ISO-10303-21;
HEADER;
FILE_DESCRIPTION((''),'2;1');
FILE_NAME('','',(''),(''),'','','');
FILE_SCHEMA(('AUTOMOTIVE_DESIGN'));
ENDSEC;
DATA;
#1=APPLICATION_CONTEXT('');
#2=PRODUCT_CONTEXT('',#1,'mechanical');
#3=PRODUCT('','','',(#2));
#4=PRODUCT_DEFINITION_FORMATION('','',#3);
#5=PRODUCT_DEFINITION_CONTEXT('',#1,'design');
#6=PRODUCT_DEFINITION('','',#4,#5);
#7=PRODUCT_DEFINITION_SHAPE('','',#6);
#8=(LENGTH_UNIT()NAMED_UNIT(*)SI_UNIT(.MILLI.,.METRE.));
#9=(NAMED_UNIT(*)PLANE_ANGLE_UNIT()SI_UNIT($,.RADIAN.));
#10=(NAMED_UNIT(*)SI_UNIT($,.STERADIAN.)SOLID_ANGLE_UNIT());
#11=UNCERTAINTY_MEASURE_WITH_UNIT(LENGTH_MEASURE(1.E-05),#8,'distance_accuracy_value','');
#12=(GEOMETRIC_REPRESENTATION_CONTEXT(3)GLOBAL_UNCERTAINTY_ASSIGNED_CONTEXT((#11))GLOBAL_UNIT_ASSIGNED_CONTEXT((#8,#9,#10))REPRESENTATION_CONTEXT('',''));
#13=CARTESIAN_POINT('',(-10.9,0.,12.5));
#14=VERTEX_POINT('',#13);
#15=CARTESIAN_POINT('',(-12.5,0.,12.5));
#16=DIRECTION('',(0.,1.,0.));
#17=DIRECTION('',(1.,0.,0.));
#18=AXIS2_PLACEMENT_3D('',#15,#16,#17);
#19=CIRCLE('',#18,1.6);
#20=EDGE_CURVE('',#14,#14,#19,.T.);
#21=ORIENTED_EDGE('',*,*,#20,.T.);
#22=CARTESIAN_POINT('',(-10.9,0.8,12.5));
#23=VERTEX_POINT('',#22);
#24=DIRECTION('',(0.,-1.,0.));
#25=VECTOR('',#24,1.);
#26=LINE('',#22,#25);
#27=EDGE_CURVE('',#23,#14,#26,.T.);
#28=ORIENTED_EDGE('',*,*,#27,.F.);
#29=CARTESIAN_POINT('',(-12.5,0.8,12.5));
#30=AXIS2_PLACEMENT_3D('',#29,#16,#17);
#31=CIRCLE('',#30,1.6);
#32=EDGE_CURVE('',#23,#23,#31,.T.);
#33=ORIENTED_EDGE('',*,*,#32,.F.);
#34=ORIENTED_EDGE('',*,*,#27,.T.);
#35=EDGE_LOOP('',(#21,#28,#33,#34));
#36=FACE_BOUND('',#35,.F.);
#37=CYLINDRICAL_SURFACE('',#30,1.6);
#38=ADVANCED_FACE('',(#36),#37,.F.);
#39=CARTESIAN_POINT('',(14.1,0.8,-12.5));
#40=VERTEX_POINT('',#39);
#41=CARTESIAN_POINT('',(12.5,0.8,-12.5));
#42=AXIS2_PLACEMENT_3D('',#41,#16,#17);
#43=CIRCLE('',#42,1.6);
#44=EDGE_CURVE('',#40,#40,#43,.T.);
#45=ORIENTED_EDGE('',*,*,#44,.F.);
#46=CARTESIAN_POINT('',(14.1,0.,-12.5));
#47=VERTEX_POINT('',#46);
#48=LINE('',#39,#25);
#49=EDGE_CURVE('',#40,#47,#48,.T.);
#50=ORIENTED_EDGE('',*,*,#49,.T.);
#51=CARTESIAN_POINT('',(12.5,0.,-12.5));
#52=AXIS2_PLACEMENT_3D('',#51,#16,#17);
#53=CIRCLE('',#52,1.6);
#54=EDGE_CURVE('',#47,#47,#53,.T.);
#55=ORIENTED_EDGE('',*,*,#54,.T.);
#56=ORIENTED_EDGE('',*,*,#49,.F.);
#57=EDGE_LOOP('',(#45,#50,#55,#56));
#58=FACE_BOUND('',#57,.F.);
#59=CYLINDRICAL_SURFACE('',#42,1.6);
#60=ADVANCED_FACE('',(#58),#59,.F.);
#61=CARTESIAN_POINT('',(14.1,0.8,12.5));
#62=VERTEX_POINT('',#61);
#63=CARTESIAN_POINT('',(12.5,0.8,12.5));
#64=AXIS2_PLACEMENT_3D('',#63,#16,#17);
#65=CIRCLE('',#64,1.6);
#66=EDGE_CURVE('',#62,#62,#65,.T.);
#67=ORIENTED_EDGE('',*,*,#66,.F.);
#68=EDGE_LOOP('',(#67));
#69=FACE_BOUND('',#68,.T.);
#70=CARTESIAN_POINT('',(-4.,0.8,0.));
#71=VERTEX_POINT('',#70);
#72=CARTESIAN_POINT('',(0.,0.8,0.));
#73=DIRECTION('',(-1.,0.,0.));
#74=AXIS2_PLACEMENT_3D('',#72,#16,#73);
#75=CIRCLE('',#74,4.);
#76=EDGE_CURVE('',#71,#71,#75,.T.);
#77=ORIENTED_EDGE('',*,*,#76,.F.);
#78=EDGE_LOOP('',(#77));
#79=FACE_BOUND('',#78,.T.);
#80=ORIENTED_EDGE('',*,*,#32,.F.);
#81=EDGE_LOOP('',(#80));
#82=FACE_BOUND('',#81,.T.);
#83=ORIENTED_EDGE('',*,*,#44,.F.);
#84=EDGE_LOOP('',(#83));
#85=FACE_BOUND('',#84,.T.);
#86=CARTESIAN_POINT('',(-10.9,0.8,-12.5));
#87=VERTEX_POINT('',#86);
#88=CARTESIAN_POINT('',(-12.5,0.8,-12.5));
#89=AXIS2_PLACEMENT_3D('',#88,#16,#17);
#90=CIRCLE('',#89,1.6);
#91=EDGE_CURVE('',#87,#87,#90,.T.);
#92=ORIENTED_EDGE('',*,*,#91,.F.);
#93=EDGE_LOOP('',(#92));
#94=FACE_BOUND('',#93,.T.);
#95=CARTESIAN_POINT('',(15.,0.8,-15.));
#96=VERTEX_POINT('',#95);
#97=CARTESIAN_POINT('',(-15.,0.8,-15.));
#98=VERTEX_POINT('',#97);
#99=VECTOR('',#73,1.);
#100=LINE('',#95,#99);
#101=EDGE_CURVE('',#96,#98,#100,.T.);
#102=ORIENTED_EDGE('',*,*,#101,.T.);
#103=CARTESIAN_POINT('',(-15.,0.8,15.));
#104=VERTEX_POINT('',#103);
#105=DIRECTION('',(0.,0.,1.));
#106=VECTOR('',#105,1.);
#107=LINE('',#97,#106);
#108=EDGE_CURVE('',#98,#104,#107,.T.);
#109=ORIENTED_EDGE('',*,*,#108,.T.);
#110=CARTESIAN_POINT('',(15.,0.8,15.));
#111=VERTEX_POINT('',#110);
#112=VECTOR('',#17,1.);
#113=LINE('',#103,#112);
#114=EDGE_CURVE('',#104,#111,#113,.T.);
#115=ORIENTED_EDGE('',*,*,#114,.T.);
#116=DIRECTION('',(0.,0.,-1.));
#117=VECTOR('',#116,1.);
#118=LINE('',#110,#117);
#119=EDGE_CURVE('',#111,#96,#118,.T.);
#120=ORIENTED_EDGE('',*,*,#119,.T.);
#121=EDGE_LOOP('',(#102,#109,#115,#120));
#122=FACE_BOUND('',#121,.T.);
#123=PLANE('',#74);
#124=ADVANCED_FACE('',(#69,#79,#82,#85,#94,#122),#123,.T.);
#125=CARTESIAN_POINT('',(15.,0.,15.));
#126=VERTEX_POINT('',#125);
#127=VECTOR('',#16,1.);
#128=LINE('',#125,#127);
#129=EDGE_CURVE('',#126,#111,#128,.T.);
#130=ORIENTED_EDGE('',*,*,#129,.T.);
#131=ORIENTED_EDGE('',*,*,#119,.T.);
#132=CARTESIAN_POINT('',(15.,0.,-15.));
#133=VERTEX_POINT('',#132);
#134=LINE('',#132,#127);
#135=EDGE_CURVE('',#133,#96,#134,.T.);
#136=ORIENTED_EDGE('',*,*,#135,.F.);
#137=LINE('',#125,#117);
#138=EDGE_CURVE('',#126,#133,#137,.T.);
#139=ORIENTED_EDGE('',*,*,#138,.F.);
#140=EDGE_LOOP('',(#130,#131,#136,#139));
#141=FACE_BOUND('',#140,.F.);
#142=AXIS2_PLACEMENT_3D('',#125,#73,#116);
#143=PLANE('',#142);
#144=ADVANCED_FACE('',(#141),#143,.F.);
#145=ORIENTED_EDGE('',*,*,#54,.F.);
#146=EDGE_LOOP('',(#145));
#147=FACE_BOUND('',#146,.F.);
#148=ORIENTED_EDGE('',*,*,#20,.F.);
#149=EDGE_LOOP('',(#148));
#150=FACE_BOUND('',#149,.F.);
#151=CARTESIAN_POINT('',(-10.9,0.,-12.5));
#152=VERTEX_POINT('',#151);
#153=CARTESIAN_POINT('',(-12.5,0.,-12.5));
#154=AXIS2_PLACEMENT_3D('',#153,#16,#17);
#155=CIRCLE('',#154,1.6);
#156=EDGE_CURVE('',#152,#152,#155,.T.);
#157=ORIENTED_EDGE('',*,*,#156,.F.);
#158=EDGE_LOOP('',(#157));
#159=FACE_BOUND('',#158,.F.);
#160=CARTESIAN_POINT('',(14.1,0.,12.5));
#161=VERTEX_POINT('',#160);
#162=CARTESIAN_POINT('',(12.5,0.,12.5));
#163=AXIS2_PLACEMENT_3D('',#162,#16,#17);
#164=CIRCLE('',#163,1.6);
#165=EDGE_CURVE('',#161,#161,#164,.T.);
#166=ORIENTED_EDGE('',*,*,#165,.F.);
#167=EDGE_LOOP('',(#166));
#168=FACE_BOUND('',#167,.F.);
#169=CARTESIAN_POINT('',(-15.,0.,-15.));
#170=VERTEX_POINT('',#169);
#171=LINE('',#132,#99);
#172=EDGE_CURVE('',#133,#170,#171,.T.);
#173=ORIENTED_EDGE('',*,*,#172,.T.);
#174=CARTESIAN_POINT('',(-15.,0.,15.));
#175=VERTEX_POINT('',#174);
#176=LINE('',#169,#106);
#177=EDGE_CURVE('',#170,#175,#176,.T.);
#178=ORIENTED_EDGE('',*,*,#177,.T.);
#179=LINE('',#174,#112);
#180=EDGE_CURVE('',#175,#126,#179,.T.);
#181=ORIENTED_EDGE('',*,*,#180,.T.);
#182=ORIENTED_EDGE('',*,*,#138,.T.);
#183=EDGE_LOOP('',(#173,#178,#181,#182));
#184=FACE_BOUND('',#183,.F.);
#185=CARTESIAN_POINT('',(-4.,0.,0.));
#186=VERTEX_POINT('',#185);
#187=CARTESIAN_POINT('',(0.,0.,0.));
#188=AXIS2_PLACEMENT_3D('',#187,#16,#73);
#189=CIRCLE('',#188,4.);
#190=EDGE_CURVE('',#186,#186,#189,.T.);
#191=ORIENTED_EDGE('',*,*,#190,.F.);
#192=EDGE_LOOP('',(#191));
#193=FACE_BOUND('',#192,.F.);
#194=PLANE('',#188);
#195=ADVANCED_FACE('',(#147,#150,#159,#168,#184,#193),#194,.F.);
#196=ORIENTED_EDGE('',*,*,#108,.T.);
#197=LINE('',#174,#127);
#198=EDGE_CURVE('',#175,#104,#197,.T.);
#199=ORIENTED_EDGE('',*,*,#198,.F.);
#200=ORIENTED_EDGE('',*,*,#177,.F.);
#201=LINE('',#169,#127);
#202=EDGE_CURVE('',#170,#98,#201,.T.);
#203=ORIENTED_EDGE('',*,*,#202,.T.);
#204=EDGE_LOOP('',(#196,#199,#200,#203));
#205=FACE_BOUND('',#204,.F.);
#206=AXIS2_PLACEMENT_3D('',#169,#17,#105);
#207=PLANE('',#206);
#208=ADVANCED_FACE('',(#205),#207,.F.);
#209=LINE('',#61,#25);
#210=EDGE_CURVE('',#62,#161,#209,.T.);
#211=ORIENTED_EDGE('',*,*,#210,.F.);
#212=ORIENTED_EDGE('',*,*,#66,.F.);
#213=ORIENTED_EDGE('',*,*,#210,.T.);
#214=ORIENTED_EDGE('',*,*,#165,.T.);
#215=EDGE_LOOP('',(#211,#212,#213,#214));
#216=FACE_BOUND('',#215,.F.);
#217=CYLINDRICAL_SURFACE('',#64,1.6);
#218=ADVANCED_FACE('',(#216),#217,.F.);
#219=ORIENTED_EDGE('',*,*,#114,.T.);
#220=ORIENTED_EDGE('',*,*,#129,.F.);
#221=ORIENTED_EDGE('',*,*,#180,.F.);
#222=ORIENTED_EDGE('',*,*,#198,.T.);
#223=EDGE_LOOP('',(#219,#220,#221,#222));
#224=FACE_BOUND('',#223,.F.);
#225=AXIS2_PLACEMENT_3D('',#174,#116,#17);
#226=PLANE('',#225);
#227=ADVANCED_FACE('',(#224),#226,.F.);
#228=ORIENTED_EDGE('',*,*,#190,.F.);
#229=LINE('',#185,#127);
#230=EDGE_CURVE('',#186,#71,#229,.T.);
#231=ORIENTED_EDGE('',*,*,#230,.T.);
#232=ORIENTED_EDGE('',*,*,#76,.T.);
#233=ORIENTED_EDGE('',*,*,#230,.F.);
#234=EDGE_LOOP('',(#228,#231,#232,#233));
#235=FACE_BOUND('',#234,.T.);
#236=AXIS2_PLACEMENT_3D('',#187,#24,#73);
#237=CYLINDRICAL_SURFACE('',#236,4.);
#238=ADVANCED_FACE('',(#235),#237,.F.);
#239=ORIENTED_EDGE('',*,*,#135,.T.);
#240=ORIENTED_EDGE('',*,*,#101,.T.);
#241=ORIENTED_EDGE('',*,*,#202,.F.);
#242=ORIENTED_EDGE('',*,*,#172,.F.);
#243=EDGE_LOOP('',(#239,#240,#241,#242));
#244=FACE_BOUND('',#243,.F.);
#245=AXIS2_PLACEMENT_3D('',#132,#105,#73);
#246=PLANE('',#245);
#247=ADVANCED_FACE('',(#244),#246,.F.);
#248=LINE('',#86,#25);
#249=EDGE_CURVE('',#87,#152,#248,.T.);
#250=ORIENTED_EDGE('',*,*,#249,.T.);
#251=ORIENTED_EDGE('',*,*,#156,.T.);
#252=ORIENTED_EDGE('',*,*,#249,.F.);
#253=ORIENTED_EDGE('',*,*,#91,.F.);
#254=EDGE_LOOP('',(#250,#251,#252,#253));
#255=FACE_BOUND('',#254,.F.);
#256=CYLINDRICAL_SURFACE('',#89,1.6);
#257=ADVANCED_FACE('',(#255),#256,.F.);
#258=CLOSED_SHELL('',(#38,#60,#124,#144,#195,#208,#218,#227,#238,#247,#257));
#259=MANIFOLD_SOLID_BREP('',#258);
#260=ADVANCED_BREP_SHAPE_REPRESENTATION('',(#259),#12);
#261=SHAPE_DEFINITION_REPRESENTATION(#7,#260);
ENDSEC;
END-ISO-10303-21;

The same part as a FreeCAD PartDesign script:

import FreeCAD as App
import Part
import Sketcher


def add_polygon(sketch, points):
    """Adds a closed chain of lines whose ends are joined by coincident constraints."""
    first, n = sketch.GeometryCount, len(points)
    for a, b in zip(points, points[1:] + points[:1]):
        sketch.addGeometry(Part.LineSegment(App.Vector(*a, 0), App.Vector(*b, 0)), False)
    for i in range(n):
        sketch.addConstraint(Sketcher.Constraint("Coincident", first + i, 2, first + (i + 1) % n, 1))

doc = App.newDocument("Part")
body = doc.addObject("PartDesign::Body", "Body")

# Sketch on XZ plane
sketch1 = body.newObject("Sketcher::SketchObject", "Sketch")
sketch1.AttachmentSupport = (doc.getObject("XZ_Plane"), [""])
sketch1.MapMode = "FlatFace"
add_polygon(sketch1, [(15, 15), (15, -15), (-15, -15), (-15, 15)])  # lines 0-3
sketch1.addGeometry(Part.Circle(App.Vector(0, 0, 0), App.Vector(0, 0, 1), 4), False)  # 4
sketch1.addConstraint([
    Sketcher.Constraint("Vertical", 0),
    Sketcher.Constraint("Horizontal", 1),
    Sketcher.Constraint("Vertical", 2),
    Sketcher.Constraint("Horizontal", 3),
    Sketcher.Constraint("Coincident", 4, 3, -1, 1),
    Sketcher.Constraint("Symmetric", 0, 2, 2, 2, -1, 1),
    Sketcher.Constraint("Equal", 3, 0),
    Sketcher.Constraint("Diameter", 4, 8.0),
    Sketcher.Constraint("DistanceX", 1, 2, 1, 1, 30.0),
])
pad1 = body.newObject("PartDesign::Pad", "Pad")
pad1.Profile = sketch1
pad1.Length = 0.8
pad1.Reversed = True

# Sketch on XZ plane
sketch2 = body.newObject("Sketcher::SketchObject", "Sketch001")
sketch2.AttachmentSupport = (doc.getObject("XZ_Plane"), [""])
sketch2.MapMode = "FlatFace"
sketch2.AttachmentOffset = App.Placement(App.Vector(0, 0, -0.8), App.Rotation())
sketch2.addGeometry([
    Part.Circle(App.Vector(-12.5, 12.5, 0), App.Vector(0, 0, 1), 1.6),
    Part.Circle(App.Vector(-12.5, -12.5, 0), App.Vector(0, 0, 1), 1.6),
    Part.Circle(App.Vector(12.5, 12.5, 0), App.Vector(0, 0, 1), 1.6),
    Part.Circle(App.Vector(12.5, -12.5, 0), App.Vector(0, 0, 1), 1.6),
], False)
sketch2.addConstraint([
    Sketcher.Constraint("Equal", 0, 1),
    Sketcher.Constraint("Equal", 1, 2),
    Sketcher.Constraint("Equal", 2, 3),
    Sketcher.Constraint("Symmetric", 1, 3, 2, 3, -1, 1),
    Sketcher.Constraint("Symmetric", 0, 3, 3, 3, -1, 1),
    Sketcher.Constraint("Symmetric", 0, 3, 2, 3, -2),
    Sketcher.Constraint("Diameter", 0, 3.2),
    Sketcher.Constraint("DistanceY", 1, 3, 0, 3, 25.0),
    Sketcher.Constraint("DistanceX", 0, 3, 2, 3, 25.0),
])
pocket1 = body.newObject("PartDesign::Pocket", "Pocket")
pocket1.Profile = sketch2
pocket1.Type = "ThroughAll"
pocket1.Reversed = True

doc.recompute()
